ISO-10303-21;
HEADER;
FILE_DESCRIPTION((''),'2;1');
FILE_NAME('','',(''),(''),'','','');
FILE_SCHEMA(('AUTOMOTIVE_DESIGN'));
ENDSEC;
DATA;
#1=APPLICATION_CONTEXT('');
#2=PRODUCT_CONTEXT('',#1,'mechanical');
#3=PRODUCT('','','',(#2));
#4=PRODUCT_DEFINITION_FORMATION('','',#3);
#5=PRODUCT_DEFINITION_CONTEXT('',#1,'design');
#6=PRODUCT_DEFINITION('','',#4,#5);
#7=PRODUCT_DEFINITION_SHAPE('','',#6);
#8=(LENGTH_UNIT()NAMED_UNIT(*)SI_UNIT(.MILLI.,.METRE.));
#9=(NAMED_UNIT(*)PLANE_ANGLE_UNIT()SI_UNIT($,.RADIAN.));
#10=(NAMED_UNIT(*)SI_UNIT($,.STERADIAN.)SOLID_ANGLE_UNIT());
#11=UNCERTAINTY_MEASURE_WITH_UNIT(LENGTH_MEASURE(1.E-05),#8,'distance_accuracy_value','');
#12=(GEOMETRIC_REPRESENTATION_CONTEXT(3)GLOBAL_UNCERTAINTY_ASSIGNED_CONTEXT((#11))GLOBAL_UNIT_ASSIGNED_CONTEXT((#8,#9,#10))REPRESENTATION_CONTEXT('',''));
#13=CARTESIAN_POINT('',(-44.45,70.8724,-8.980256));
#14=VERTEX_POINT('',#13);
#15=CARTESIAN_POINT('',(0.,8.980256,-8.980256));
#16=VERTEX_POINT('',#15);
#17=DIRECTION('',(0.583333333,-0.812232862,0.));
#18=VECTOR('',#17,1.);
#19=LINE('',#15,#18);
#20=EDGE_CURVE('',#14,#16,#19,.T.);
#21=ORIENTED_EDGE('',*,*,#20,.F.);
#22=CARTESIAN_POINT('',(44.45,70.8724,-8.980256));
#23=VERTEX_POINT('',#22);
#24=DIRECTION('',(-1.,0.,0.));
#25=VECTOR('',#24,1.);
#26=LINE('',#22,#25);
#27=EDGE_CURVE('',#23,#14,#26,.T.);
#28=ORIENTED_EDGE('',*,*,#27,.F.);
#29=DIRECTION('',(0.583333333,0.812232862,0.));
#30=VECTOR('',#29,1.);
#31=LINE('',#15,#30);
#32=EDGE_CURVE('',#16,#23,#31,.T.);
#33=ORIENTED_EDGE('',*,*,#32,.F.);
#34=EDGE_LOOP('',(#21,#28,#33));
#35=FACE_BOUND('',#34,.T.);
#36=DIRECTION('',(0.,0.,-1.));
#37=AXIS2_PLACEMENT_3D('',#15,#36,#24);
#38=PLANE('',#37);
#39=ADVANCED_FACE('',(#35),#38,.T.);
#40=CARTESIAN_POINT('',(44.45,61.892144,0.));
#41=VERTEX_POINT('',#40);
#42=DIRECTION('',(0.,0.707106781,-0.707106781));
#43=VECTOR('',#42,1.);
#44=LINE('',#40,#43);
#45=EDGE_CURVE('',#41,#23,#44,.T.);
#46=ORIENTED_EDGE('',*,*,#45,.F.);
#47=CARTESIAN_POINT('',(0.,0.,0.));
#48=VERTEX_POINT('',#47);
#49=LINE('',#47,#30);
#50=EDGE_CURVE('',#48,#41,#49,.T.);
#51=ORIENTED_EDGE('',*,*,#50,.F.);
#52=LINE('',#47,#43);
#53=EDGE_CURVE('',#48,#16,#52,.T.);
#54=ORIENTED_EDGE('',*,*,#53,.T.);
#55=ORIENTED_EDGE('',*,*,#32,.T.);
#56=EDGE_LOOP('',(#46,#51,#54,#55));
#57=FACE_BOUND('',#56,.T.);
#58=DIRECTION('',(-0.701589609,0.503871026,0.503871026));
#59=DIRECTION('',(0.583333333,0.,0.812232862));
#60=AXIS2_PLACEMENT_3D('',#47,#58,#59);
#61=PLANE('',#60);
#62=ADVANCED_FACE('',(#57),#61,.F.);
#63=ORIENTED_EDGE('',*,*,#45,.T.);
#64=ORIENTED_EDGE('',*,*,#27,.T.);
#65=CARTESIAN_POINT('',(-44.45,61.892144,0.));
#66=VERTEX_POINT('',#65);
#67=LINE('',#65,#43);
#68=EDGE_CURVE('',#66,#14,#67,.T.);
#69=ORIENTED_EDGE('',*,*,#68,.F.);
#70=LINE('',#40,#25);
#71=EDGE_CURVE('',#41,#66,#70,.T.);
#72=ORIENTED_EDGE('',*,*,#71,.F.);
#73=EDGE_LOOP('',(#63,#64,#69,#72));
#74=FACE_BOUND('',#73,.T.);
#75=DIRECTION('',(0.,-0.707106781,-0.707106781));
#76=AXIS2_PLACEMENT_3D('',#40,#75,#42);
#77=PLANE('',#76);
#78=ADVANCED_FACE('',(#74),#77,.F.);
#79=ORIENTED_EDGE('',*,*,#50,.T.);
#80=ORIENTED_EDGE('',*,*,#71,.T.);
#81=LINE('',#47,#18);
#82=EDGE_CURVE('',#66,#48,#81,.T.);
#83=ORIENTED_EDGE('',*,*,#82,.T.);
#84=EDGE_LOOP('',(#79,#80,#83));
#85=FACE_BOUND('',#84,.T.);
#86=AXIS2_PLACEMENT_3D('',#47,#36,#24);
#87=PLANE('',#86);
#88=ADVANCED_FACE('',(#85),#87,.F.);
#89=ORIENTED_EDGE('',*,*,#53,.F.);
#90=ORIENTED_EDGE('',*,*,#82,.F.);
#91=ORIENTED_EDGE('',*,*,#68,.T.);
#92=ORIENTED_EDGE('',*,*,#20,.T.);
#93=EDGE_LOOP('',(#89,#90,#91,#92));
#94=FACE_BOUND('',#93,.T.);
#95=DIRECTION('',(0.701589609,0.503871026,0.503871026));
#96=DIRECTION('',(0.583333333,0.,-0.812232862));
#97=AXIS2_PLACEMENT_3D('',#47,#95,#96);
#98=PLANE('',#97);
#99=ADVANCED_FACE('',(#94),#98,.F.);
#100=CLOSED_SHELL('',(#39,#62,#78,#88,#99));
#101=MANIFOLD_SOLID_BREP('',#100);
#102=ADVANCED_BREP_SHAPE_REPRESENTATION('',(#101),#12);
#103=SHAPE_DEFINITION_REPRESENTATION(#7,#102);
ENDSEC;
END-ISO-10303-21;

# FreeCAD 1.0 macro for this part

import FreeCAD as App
import Part
import Sketcher

V = App.Vector
Q = App.Units.Quantity


def add_polygon(sketch, points):
    """Adds a closed chain of lines whose ends are joined by coincident constraints."""
    first, n = sketch.GeometryCount, len(points)
    for a, b in zip(points, points[1:] + points[:1]):
        sketch.addGeometry(Part.LineSegment(App.Vector(*a, 0), App.Vector(*b, 0)), False)
    for i in range(n):
        sketch.addConstraint(Sketcher.Constraint("Coincident", first + i, 2, first + (i + 1) % n, 1))

doc = App.newDocument("Part")
body = doc.addObject("PartDesign::Body", "Body")

sketch1 = doc.addObject("Sketcher::SketchObject", "Sketch")
body.addObject(sketch1)
sketch1.AttachmentSupport = (doc.XY_Plane, [""])
sketch1.MapMode = "FlatFace"
add_polygon(sketch1, [(0, 0), (44.45, 61.892144), (-44.45, 61.892144)])
sketch1.addConstraint([
    Sketcher.Constraint("Horizontal", 1),
    Sketcher.Constraint("Coincident", 2, 2, -1, 1),
    Sketcher.Constraint("Equal", 0, 2),
    Sketcher.Constraint("Distance", 0, Q("3 in")),
    Sketcher.Constraint("DistanceX", 1, 2, 1, 1, Q("3.5 in")),
])

sketch2 = doc.addObject("Sketcher::SketchObject", "Sketch001")
body.addObject(sketch2)
sketch2.Placement = App.Placement(V(0, 0, 0), App.Rotation(V(0, 0.707106781, -0.707106781), V(0.999999999, 0, 0), V(0, -0.707106781, -0.707106781), "ZXY"))
sketch2.addGeometry(Part.LineSegment(V(0, 0, 0), V(12.7, 0, 0)), False)
sketch2.addConstraint([
    Sketcher.Constraint("Horizontal", 0),
    Sketcher.Constraint("Coincident", 0, 1, -1, 1),
    Sketcher.Constraint("DistanceX", 0, 1, 0, 2, Q("0.5 in")),
])
doc.recompute()

additivepipe = doc.addObject("PartDesign::AdditivePipe", "AdditivePipe")
body.addObject(additivepipe)
additivepipe.Profile = sketch1
additivepipe.Spine = (sketch2, ["Edge1"])

doc.recompute()
